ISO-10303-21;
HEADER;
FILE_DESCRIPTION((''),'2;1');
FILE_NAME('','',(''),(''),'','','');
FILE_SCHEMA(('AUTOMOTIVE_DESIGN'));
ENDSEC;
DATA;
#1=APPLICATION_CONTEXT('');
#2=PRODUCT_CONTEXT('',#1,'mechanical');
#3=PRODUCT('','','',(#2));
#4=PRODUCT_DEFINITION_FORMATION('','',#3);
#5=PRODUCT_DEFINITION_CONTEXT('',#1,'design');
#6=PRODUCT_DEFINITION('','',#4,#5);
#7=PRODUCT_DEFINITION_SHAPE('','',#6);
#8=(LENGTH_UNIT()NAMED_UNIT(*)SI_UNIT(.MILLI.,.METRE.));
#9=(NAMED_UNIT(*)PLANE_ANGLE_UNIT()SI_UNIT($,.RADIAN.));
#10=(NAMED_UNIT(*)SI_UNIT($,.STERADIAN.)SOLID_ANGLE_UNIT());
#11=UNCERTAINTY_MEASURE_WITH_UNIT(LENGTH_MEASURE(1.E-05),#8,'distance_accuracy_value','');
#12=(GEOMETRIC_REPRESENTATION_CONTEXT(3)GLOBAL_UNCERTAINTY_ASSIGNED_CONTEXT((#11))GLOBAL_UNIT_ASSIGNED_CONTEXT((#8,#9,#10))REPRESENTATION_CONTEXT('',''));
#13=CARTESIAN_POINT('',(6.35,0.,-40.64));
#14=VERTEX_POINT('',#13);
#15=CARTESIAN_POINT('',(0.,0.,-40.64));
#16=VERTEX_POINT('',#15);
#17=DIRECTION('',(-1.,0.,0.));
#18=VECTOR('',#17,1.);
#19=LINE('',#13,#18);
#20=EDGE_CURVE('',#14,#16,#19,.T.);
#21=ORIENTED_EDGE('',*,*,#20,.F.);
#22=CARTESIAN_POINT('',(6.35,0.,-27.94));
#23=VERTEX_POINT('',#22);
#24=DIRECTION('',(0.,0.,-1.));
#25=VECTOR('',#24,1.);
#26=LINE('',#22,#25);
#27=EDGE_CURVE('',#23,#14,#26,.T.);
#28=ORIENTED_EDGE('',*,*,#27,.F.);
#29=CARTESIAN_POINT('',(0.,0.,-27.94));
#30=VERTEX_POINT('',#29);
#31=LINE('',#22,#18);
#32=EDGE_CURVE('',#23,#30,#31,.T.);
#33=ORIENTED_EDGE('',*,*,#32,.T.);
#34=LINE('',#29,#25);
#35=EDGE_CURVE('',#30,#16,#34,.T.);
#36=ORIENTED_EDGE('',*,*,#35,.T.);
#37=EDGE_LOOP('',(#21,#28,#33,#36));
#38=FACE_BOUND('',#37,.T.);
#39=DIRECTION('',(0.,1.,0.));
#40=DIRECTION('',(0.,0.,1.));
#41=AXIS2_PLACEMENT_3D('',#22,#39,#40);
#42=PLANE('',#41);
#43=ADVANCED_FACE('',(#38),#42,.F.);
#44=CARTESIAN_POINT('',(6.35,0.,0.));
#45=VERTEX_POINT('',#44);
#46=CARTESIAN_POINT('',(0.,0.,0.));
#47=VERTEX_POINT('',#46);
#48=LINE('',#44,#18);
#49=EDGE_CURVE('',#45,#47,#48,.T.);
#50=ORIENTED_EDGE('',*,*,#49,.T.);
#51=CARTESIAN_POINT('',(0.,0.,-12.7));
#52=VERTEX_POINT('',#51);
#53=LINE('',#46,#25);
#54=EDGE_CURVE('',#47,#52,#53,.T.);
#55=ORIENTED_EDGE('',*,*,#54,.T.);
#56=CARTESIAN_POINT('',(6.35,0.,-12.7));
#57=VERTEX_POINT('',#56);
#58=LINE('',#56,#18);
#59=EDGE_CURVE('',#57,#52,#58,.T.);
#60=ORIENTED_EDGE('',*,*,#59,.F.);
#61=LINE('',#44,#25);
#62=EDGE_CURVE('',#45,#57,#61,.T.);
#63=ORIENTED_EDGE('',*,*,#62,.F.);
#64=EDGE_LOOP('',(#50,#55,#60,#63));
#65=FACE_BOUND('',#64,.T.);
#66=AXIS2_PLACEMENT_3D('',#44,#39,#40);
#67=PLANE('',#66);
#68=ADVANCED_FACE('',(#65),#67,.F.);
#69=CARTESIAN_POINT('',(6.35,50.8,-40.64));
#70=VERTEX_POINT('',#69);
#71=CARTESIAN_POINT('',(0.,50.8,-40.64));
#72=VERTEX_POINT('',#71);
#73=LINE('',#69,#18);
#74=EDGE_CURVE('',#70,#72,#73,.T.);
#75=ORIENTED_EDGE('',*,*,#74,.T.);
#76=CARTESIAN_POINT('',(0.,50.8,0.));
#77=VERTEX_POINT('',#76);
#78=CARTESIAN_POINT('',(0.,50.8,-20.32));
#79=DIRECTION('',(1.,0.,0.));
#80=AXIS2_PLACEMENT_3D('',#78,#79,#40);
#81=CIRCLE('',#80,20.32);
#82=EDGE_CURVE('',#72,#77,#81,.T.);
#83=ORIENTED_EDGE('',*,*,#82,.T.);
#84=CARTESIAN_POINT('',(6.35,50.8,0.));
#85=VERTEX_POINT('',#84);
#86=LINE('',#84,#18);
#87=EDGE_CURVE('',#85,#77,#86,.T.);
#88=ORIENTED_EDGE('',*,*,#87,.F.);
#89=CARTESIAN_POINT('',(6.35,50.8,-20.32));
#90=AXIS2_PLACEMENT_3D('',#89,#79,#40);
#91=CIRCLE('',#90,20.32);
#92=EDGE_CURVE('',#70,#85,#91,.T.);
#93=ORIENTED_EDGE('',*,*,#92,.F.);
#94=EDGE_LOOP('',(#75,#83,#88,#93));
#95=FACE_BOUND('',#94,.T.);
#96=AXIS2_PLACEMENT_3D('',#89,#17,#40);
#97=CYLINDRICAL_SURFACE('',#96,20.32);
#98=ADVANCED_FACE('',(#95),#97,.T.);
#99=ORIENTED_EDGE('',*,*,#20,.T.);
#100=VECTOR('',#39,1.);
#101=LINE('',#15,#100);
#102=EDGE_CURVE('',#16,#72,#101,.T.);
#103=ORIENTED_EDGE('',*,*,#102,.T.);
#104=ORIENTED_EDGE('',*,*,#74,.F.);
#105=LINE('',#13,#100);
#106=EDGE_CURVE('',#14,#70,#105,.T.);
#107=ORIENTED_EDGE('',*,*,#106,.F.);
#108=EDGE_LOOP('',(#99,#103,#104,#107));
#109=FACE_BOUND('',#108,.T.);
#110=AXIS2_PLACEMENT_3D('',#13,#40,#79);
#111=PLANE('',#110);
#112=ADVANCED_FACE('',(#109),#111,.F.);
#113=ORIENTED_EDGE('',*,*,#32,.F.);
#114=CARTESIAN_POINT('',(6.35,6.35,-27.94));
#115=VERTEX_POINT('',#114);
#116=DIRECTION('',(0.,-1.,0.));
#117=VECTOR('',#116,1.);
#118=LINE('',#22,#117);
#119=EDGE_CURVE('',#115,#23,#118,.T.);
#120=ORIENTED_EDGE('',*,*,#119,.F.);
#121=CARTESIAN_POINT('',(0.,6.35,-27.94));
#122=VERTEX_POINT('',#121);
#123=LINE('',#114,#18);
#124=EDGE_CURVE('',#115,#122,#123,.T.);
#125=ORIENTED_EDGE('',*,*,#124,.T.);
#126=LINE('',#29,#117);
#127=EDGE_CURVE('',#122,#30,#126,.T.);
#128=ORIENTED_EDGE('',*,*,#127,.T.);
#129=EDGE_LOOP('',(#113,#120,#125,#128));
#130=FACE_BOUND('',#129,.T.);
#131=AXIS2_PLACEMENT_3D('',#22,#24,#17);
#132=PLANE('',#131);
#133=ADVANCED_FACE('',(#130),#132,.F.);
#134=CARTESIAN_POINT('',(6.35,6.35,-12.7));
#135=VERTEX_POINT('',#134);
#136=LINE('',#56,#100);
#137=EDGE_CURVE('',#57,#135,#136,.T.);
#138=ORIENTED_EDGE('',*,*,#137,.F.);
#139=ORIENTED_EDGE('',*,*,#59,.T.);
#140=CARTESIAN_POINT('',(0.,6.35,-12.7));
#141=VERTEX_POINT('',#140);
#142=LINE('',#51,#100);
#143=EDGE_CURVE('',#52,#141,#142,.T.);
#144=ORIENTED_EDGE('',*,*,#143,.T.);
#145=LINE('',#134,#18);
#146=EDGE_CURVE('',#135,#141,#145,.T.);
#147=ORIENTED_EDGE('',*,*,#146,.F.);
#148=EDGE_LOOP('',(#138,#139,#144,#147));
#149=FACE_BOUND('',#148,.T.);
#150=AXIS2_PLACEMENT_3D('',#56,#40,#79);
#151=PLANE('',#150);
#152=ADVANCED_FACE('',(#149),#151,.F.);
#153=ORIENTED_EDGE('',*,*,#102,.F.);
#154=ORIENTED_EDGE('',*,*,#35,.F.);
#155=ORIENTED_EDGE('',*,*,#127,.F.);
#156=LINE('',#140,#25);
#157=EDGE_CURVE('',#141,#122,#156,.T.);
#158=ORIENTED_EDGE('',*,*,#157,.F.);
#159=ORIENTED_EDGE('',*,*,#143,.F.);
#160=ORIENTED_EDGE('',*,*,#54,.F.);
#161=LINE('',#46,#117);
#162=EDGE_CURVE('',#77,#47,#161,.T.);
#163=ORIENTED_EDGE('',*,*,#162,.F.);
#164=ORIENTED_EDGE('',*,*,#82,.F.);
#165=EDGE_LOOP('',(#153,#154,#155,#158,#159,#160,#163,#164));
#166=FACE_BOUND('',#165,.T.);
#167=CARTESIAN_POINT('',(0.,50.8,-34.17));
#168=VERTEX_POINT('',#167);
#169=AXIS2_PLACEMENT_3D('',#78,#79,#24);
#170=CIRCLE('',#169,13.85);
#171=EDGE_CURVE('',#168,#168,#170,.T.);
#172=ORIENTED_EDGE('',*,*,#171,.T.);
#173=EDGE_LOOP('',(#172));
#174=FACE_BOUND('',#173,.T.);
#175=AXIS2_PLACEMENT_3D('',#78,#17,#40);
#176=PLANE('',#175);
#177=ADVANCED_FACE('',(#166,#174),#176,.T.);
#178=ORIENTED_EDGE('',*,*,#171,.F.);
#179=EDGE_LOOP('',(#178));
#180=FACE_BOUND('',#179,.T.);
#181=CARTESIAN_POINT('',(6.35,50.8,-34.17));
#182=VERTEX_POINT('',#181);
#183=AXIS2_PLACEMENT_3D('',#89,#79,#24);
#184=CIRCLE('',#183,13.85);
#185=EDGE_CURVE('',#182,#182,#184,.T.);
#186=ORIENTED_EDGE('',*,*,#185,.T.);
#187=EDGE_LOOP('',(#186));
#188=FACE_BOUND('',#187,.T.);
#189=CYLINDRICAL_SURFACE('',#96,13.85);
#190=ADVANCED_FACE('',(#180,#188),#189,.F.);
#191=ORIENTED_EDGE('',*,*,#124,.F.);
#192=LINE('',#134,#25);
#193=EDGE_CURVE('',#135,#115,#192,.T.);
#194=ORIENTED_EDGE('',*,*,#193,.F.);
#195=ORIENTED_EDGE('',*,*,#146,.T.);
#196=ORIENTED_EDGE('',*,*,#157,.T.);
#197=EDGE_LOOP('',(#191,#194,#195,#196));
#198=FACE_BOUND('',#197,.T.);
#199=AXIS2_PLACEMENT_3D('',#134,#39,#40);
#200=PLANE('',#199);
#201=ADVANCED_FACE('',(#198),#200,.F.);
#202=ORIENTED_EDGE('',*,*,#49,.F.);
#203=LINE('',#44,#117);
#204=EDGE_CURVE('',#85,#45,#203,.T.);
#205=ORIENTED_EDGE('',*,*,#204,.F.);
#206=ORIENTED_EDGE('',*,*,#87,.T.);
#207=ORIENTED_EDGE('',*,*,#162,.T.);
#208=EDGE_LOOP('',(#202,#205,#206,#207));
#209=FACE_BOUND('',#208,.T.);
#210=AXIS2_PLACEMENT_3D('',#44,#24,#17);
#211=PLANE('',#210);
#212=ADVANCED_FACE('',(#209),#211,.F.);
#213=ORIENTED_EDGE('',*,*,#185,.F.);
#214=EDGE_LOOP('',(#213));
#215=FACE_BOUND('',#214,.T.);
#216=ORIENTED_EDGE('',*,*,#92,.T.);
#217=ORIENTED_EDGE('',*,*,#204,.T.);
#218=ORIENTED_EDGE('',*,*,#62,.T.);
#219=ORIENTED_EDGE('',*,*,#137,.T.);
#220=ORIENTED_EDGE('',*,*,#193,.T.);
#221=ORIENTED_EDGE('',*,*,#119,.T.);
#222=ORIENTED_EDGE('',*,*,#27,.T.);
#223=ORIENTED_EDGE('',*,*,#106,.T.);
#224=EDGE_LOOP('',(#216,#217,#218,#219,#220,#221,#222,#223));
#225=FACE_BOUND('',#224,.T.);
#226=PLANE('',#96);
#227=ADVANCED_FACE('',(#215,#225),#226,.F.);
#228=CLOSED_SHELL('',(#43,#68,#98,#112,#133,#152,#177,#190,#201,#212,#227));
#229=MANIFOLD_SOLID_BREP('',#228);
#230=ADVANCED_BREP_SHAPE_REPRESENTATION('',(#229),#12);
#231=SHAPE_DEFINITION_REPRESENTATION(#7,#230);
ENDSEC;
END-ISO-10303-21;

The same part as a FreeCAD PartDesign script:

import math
import FreeCAD as App
import Part
import Sketcher

V = App.Vector
Q = App.Units.Quantity

doc = App.newDocument("Part")
body = doc.addObject("PartDesign::Body", "Body")

# Sketch on YZ plane
sketch1 = doc.addObject("Sketcher::SketchObject", "Sketch")
body.addObject(sketch1)
sketch1.AttachmentSupport = (doc.YZ_Plane, [""])
sketch1.MapMode = "FlatFace"
sketch1.addGeometry([
    Part.LineSegment(V(0, -28, 0), V(0, -41, 0)),  # 0
    Part.LineSegment(V(0, -41, 0), V(51, -41, 0)),  # 1
    Part.ArcOfCircle(Part.Circle(V(51, -20, 0), V(0, 0, 1), 20), math.radians(-90), math.radians(90)),  # 2
    Part.LineSegment(V(51, 0, 0), V(0, 0, 0)),  # 3
    Part.LineSegment(V(0, 0, 0), V(0, -13, 0)),  # 4
    Part.LineSegment(V(0, -13, 0), V(6, -13, 0)),  # 5
    Part.LineSegment(V(6, -13, 0), V(6, -28, 0)),  # 6
    Part.LineSegment(V(6, -28, 0), V(0, -28, 0)),  # 7
    Part.Circle(V(51, -20, 0), V(0, 0, 1), 14),  # 8
], False)
sketch1.addConstraint([
    Sketcher.Constraint("Coincident", 0, 2, 1, 1),
    Sketcher.Constraint("Tangent", 1, 2, 2, 1),
    Sketcher.Constraint("Tangent", 2, 2, 3, 1),
    Sketcher.Constraint("Coincident", 3, 2, 4, 1),
    Sketcher.Constraint("Coincident", 4, 2, 5, 1),
    Sketcher.Constraint("Coincident", 5, 2, 6, 1),
    Sketcher.Constraint("Coincident", 6, 2, 7, 1),
    Sketcher.Constraint("Coincident", 7, 2, 0, 1),
    Sketcher.Constraint("Vertical", 0),
    Sketcher.Constraint("Horizontal", 1),
    Sketcher.Constraint("Horizontal", 3),
    Sketcher.Constraint("Vertical", 4),
    Sketcher.Constraint("Horizontal", 5),
    Sketcher.Constraint("Vertical", 6),
    Sketcher.Constraint("Horizontal", 7),
    Sketcher.Constraint("Coincident", 3, 2, -1, 1),
    Sketcher.Constraint("Coincident", 8, 3, 2, 3),
    Sketcher.Constraint("PointOnObject", 0, 2, -2),
    Sketcher.Constraint("Equal", 0, 4),
    Sketcher.Constraint("Radius", 2, Q("0.8 in")),
    Sketcher.Constraint("DistanceX", 1, 1, 1, 2, Q("2 in")),
    Sketcher.Constraint("DistanceY", 0, 2, 0, 1, Q("0.5 in")),
    Sketcher.Constraint("DistanceX", 5, 1, 5, 2, Q("0.25 in")),
    Sketcher.Constraint("Diameter", 8, 27.7),
])
pad1 = doc.addObject("PartDesign::Pad", "Pad")
body.addObject(pad1)
pad1.Profile = sketch1
pad1.Length = Q("0.25 in")

doc.recompute()
